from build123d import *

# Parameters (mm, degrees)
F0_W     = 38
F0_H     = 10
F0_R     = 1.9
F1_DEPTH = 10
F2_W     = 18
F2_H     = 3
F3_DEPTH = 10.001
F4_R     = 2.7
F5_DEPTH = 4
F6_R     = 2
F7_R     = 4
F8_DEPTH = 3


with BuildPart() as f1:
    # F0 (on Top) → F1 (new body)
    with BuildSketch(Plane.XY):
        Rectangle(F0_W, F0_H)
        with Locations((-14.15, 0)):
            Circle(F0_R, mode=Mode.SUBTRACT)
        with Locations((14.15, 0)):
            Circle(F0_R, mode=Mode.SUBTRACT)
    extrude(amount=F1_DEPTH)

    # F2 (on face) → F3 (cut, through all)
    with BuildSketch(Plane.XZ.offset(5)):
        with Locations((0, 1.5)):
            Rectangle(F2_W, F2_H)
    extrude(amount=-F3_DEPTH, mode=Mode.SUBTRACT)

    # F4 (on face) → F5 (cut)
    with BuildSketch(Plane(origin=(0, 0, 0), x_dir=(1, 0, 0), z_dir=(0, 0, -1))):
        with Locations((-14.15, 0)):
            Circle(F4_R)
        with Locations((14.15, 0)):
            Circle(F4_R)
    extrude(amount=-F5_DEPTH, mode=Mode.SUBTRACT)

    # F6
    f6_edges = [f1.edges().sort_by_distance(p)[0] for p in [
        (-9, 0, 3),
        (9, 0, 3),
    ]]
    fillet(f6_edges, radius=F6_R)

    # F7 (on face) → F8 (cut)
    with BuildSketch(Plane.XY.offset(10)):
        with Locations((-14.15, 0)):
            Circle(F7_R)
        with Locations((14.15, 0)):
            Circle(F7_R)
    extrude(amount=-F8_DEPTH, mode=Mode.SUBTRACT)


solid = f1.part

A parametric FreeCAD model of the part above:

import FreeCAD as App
import Part
import Sketcher

V = App.Vector


def edges_at(feature, points):
    """Names of the edges that pass closest to the given points."""
    edges = feature.Shape.Edges
    near = lambda p: min(range(len(edges)), key=lambda i: edges[i].distToShape(Part.Vertex(*p))[0])
    return sorted({f"Edge{near(p) + 1}" for p in points})


def add_polygon(sketch, points):
    """Adds a closed chain of lines whose ends are joined by coincident constraints."""
    first, n = sketch.GeometryCount, len(points)
    for a, b in zip(points, points[1:] + points[:1]):
        sketch.addGeometry(Part.LineSegment(App.Vector(*a, 0), App.Vector(*b, 0)), False)
    for i in range(n):
        sketch.addConstraint(Sketcher.Constraint("Coincident", first + i, 2, first + (i + 1) % n, 1))

doc = App.newDocument("Part")
body = doc.addObject("PartDesign::Body", "Body")

sketch1 = doc.addObject("Sketcher::SketchObject", "Sketch")
body.addObject(sketch1)
sketch1.AttachmentSupport = (doc.XY_Plane, [""])
sketch1.MapMode = "FlatFace"
add_polygon(sketch1, [(-19, 5), (-19, -5), (19, -5), (19, 5)])
sketch1.addGeometry(Part.Circle(V(-14.2, 0, 0), V(0, 0, 1), 1.9), False)
sketch1.addGeometry(Part.Circle(V(14.2, 0, 0), V(0, 0, 1), 1.9), False)
sketch1.addConstraint([
    Sketcher.Constraint("Vertical", 0),
    Sketcher.Constraint("Horizontal", 1),
    Sketcher.Constraint("Vertical", 2),
    Sketcher.Constraint("Horizontal", 3),
    Sketcher.Constraint("Equal", 4, 5),
    Sketcher.Constraint("Symmetric", 4, 3, 5, 3, -1, 1),
    Sketcher.Constraint("Symmetric", 0, 2, 2, 2, -1, 1),
    Sketcher.Constraint("PointOnObject", 4, 3, -1),
    Sketcher.Constraint("Diameter", 4, 3.8),
    Sketcher.Constraint("DistanceX", 1, 1, 1, 2, 38.0),
    Sketcher.Constraint("DistanceY", 0, 2, 0, 1, 10.0),
    Sketcher.Constraint("DistanceX", 4, 3, 5, 3, 28.3),
])
pad1 = doc.addObject("PartDesign::Pad", "Pad")
body.addObject(pad1)
pad1.Profile = sketch1
pad1.Length = 10

sketch2 = doc.addObject("Sketcher::SketchObject", "Sketch001")
body.addObject(sketch2)
sketch2.AttachmentSupport = (doc.XZ_Plane, [""])
sketch2.MapMode = "FlatFace"
sketch2.AttachmentOffset = App.Placement(V(0, 0, 5), App.Rotation())
add_polygon(sketch2, [(-9, 3), (-9, 0), (9, 0), (9, 3)])
sketch2.addConstraint([
    Sketcher.Constraint("Vertical", 0),
    Sketcher.Constraint("Horizontal", 1),
    Sketcher.Constraint("Vertical", 2),
    Sketcher.Constraint("Horizontal", 3),
    Sketcher.Constraint("Symmetric", 0, 2, 1, 2, -1, 1),
    Sketcher.Constraint("DistanceX", 1, 1, 1, 2, 18.0),
    Sketcher.Constraint("DistanceY", 0, 2, 0, 1, 3.0),
])
pocket1 = doc.addObject("PartDesign::Pocket", "Pocket")
body.addObject(pocket1)
pocket1.Profile = sketch2
pocket1.Type = "ThroughAll"

sketch3 = doc.addObject("Sketcher::SketchObject", "Sketch002")
body.addObject(sketch3)
sketch3.AttachmentSupport = (doc.XY_Plane, [""])
sketch3.MapMode = "FlatFace"
sketch3.addGeometry([
    Part.Circle(V(-14.2, 0, 0), V(0, 0, 1), 2.7),
    Part.Circle(V(14.2, 0, 0), V(0, 0, 1), 2.7),
], False)
sketch3.addConstraint([
    Sketcher.Constraint("Equal", 0, 1),
    Sketcher.Constraint("Symmetric", 0, 3, 1, 3, -1, 1),
    Sketcher.Constraint("PointOnObject", 0, 3, -1),
    Sketcher.Constraint("Diameter", 0, 5.4),
    Sketcher.Constraint("DistanceX", 0, 3, 1, 3, 28.3),
])
pocket2 = doc.addObject("PartDesign::Pocket", "Pocket001")
body.addObject(pocket2)
pocket2.Profile = sketch3
pocket2.Length = 4
pocket2.Reversed = True
doc.recompute()

fillet = doc.addObject("PartDesign::Fillet", "Fillet")
body.addObject(fillet)
fillet.Base = (pocket2, edges_at(pocket2, [(-9, 0, 3), (9, 0, 3)]))
fillet.Radius = 2

sketch4 = doc.addObject("Sketcher::SketchObject", "Sketch003")
body.addObject(sketch4)
sketch4.AttachmentSupport = (doc.XY_Plane, [""])
sketch4.MapMode = "FlatFace"
sketch4.AttachmentOffset = App.Placement(V(0, 0, 10), App.Rotation())
sketch4.addGeometry([
    Part.Circle(V(-14.2, 0, 0), V(0, 0, 1), 4),
    Part.Circle(V(14.2, 0, 0), V(0, 0, 1), 4),
], False)
sketch4.addConstraint([
    Sketcher.Constraint("Equal", 0, 1),
    Sketcher.Constraint("Symmetric", 0, 3, 1, 3, -1, 1),
    Sketcher.Constraint("PointOnObject", 0, 3, -1),
    Sketcher.Constraint("Diameter", 0, 8.0),
    Sketcher.Constraint("DistanceX", 0, 3, 1, 3, 28.3),
])
pocket3 = doc.addObject("PartDesign::Pocket", "Pocket002")
body.addObject(pocket3)
pocket3.Profile = sketch4
pocket3.Length = 3

doc.recompute()
